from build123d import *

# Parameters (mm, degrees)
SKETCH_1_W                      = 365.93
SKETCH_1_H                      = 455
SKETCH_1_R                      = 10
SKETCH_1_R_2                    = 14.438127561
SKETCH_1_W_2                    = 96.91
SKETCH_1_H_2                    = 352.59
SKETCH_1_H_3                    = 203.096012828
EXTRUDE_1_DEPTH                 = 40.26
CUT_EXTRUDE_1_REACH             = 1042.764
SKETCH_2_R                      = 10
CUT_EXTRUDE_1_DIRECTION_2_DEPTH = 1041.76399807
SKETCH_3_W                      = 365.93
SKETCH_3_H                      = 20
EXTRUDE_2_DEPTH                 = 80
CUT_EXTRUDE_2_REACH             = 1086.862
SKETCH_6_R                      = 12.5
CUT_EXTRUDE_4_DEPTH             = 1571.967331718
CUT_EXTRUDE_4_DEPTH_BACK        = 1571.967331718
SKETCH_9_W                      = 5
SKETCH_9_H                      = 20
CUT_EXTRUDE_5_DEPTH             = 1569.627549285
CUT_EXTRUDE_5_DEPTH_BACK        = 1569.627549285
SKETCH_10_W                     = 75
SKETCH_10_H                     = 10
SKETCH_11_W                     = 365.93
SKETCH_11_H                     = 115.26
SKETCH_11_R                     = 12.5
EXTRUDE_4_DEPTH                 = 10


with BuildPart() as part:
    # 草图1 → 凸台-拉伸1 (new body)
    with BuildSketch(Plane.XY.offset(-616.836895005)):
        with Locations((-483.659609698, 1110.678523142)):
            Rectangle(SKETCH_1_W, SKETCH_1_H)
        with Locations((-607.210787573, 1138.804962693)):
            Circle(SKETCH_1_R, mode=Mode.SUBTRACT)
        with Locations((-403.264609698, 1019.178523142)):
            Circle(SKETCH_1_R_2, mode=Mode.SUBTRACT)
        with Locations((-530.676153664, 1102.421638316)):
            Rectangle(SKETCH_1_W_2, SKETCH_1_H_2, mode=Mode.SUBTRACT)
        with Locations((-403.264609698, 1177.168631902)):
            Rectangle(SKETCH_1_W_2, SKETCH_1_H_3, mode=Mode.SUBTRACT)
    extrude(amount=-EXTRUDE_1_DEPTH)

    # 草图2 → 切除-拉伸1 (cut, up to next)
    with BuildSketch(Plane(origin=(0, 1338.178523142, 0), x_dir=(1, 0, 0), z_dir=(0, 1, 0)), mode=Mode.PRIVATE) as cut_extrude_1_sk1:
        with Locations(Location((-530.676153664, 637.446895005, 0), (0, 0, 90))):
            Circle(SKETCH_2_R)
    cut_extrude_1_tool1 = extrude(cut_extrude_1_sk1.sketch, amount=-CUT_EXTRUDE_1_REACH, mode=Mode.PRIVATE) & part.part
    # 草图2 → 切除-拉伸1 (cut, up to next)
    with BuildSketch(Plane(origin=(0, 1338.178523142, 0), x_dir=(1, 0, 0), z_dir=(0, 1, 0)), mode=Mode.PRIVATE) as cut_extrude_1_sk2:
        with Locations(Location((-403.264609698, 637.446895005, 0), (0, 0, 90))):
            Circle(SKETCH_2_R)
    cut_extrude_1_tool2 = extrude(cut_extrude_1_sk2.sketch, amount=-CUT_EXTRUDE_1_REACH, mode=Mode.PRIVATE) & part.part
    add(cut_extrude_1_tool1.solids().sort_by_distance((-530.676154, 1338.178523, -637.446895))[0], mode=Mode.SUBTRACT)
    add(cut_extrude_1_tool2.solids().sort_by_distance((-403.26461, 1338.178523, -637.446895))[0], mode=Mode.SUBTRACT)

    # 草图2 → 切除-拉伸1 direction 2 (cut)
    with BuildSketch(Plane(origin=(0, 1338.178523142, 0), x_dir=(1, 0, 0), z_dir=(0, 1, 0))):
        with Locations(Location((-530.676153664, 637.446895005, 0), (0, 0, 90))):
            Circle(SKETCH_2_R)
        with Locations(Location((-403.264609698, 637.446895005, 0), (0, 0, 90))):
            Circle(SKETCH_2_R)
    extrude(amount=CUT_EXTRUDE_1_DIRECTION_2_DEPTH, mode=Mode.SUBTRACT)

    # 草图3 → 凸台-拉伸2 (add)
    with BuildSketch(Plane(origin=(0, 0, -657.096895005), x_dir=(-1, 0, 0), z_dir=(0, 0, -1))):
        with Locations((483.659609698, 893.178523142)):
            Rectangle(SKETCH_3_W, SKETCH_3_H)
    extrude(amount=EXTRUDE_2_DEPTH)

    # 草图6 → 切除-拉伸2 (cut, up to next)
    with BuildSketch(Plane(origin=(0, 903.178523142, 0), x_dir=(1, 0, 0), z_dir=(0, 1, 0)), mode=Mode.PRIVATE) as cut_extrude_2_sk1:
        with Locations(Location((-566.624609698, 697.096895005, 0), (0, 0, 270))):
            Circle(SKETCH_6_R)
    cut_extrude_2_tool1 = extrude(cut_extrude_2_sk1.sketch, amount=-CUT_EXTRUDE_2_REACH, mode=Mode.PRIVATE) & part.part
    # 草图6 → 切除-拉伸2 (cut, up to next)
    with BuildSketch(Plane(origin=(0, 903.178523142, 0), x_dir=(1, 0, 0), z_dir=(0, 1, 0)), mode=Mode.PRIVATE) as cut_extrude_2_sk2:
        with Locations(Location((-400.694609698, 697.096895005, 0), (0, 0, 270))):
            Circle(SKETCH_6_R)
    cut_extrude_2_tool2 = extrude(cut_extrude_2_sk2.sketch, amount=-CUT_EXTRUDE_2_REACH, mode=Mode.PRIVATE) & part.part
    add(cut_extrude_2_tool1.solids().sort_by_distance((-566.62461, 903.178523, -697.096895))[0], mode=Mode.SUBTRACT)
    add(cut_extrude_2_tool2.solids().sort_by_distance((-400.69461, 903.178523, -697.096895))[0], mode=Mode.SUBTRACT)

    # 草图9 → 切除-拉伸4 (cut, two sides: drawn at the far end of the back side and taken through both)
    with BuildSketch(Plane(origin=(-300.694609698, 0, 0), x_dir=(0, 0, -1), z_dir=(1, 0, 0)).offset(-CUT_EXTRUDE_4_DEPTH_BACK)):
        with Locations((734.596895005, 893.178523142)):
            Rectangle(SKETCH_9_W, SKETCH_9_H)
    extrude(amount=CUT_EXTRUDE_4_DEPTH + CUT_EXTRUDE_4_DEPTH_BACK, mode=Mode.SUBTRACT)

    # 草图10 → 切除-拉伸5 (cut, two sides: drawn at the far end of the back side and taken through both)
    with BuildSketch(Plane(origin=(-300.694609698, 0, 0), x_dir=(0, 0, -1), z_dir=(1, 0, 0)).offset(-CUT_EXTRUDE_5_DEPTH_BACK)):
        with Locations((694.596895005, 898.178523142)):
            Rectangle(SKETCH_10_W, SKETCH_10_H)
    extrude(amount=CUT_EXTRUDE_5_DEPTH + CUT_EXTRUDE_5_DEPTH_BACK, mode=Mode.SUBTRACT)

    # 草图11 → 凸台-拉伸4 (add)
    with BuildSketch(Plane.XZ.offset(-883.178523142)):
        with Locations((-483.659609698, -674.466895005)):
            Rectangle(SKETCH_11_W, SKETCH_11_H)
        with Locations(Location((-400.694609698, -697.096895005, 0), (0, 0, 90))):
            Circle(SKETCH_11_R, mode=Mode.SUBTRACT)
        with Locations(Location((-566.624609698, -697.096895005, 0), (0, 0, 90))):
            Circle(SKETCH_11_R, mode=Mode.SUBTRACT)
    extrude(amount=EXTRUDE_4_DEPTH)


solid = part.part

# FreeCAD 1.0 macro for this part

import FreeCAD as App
import Part
import Sketcher

V = App.Vector
Q = App.Units.Quantity

doc = App.newDocument("Part")
body = doc.addObject("PartDesign::Body", "Body")

# Sketch on XY plane
sketch1 = doc.addObject("Sketcher::SketchObject", "Sketch")
body.addObject(sketch1)
sketch1.AttachmentSupport = (doc.XY_Plane, [""])
sketch1.MapMode = "FlatFace"
sketch1.AttachmentOffset = App.Placement(V(0, 0, -616.836895), App.Rotation())
sketch1.addGeometry(Part.LineSegment(V(-666.62461, 1338.178523, 0), V(-666.62461, 883.178523, 0)), False)
sketch1.addGeometry(Part.LineSegment(V(-666.62461, 883.178523, 0), V(-300.69461, 883.178523, 0)), False)
sketch1.addGeometry(Part.LineSegment(V(-300.69461, 883.178523, 0), V(-300.69461, 1338.178523, 0)), False)
sketch1.addGeometry(Part.LineSegment(V(-300.69461, 1338.178523, 0), V(-666.62461, 1338.178523, 0)), False)
sketch1.addGeometry(Part.Circle(V(-403.26461, 1019.178523, 0), V(0, 0, 1), 14.438128), False)
sketch1.addGeometry(Part.Circle(V(-607.210788, 1138.804963, 0), V(0, 0, 1), 10), False)
sketch1.addGeometry(Part.LineSegment(V(-482.221154, 926.126638, 0), V(-579.131154, 926.126638, 0)), False)
sketch1.addGeometry(Part.LineSegment(V(-579.131154, 926.126638, 0), V(-579.131154, 1278.716638, 0)), False)
sketch1.addGeometry(Part.LineSegment(V(-579.131154, 1278.716638, 0), V(-482.221154, 1278.716638, 0)), False)
sketch1.addGeometry(Part.LineSegment(V(-482.221154, 1278.716638, 0), V(-482.221154, 926.126638, 0)), False)
sketch1.addGeometry(Part.LineSegment(V(-354.80961, 1075.620625, 0), V(-451.71961, 1075.620625, 0)), False)
sketch1.addGeometry(Part.LineSegment(V(-451.71961, 1075.620625, 0), V(-451.71961, 1278.716638, 0)), False)
sketch1.addGeometry(Part.LineSegment(V(-451.71961, 1278.716638, 0), V(-354.80961, 1278.716638, 0)), False)
sketch1.addGeometry(Part.LineSegment(V(-354.80961, 1278.716638, 0), V(-354.80961, 1075.620625, 0)), False)
sketch1.addConstraint(Sketcher.Constraint("Coincident", 0, 2, 1, 1))
sketch1.addConstraint(Sketcher.Constraint("Coincident", 1, 2, 2, 1))
sketch1.addConstraint(Sketcher.Constraint("Coincident", 2, 2, 3, 1))
sketch1.addConstraint(Sketcher.Constraint("Coincident", 3, 2, 0, 1))
sketch1.addConstraint(Sketcher.Constraint("Coincident", 6, 2, 7, 1))
sketch1.addConstraint(Sketcher.Constraint("Coincident", 7, 2, 8, 1))
sketch1.addConstraint(Sketcher.Constraint("Coincident", 8, 2, 9, 1))
sketch1.addConstraint(Sketcher.Constraint("Coincident", 9, 2, 6, 1))
sketch1.addConstraint(Sketcher.Constraint("Coincident", 10, 2, 11, 1))
sketch1.addConstraint(Sketcher.Constraint("Coincident", 11, 2, 12, 1))
sketch1.addConstraint(Sketcher.Constraint("Coincident", 12, 2, 13, 1))
sketch1.addConstraint(Sketcher.Constraint("Coincident", 13, 2, 10, 1))
sketch1.addConstraint(Sketcher.Constraint("Vertical", 0))
sketch1.addConstraint(Sketcher.Constraint("Horizontal", 1))
sketch1.addConstraint(Sketcher.Constraint("Vertical", 2))
sketch1.addConstraint(Sketcher.Constraint("Horizontal", 3))
sketch1.addConstraint(Sketcher.Constraint("Horizontal", 6))
sketch1.addConstraint(Sketcher.Constraint("Vertical", 7))
sketch1.addConstraint(Sketcher.Constraint("Horizontal", 8))
sketch1.addConstraint(Sketcher.Constraint("Vertical", 9))
sketch1.addConstraint(Sketcher.Constraint("Horizontal", 10))
sketch1.addConstraint(Sketcher.Constraint("Vertical", 11))
sketch1.addConstraint(Sketcher.Constraint("Horizontal", 12))
sketch1.addConstraint(Sketcher.Constraint("Vertical", 13))
sketch1.addConstraint(Sketcher.Constraint("Horizontal", 8, 2, 11, 2))
sketch1.addConstraint(Sketcher.Constraint("Equal", 8, 10))
sketch1.addConstraint(Sketcher.Constraint("Diameter", 5, Q("20 mm")))
sketch1.addConstraint(Sketcher.Constraint("DistanceY", 0, 2, 0, 1, Q("455 mm")))
sketch1.addConstraint(Sketcher.Constraint("DistanceY", 0, 2, 4, 3, Q("136 mm")))
sketch1.addConstraint(Sketcher.Constraint("DistanceX", 1, 1, 1, 2, Q("365.93 mm")))
sketch1.addConstraint(Sketcher.Constraint("DistanceX", 6, 2, 6, 1, Q("96.91 mm")))
sketch1.addConstraint(Sketcher.Constraint("DistanceY", 7, 1, 7, 2, Q("352.59 mm")))
sketch1.addConstraint(Sketcher.Constraint("DistanceX", 0, 2, 4, 3, Q("263.36 mm")))
sketch1.addConstraint(Sketcher.Constraint("Diameter", 4, Q("28.876255 mm")))
sketch1.addConstraint(Sketcher.Constraint("DistanceX", 10, 2, 4, 3, Q("48.455 mm")))
sketch1.addConstraint(Sketcher.Constraint("DistanceY", 11, 1, 11, 2, Q("203.096013 mm")))
sketch1.addConstraint(Sketcher.Constraint("DistanceX", 4, 3, -1, 1, Q("403.26461 mm")))
sketch1.addConstraint(Sketcher.Constraint("DistanceY", -1, 1, 6, 2, Q("926.126638 mm")))
sketch1.addConstraint(Sketcher.Constraint("DistanceY", 4, 3, 5, 3, Q("119.62644 mm")))
sketch1.addConstraint(Sketcher.Constraint("DistanceY", -1, 1, 4, 3, Q("1019.178523 mm")))
sketch1.addConstraint(Sketcher.Constraint("DistanceX", 5, 3, -1, 1, Q("607.210788 mm")))
sketch1.addConstraint(Sketcher.Constraint("DistanceX", 6, 2, -1, 1, Q("579.131154 mm")))
pad1 = doc.addObject("PartDesign::Pad", "Pad")
body.addObject(pad1)
pad1.Profile = sketch1
pad1.Length = 40.26
pad1.Reversed = True

# Sketch on XZ plane
sketch2 = doc.addObject("Sketcher::SketchObject", "Sketch001")
body.addObject(sketch2)
sketch2.AttachmentSupport = (doc.XZ_Plane, [""])
sketch2.MapMode = "FlatFace"
sketch2.AttachmentOffset = App.Placement(V(0, 0, -1338.178523), App.Rotation())
sketch2.addGeometry(Part.Circle(V(-530.676154, -637.446895, 0), V(0, 0, 1), 10), False)
sketch2.addConstraint(Sketcher.Constraint("Diameter", 0, Q("20 mm")))
sketch2.addConstraint(Sketcher.Constraint("DistanceX", 0, 3, -1, 1, Q("530.676154 mm")))
sketch2.addConstraint(Sketcher.Constraint("DistanceY", 0, 3, -1, 1, Q("637.446895 mm")))
pocket1 = doc.addObject("PartDesign::Pocket", "Pocket")
body.addObject(pocket1)
pocket1.Profile = sketch2
pocket1.Type = "UpToFirst"
pocket1.Reversed = True

# Sketch on XZ plane
sketch3 = doc.addObject("Sketcher::SketchObject", "Sketch002")
body.addObject(sketch3)
sketch3.AttachmentSupport = (doc.XZ_Plane, [""])
sketch3.MapMode = "FlatFace"
sketch3.AttachmentOffset = App.Placement(V(0, 0, -1338.178523), App.Rotation())
sketch3.addGeometry(Part.Circle(V(-403.26461, -637.446895, 0), V(0, 0, 1), 10), False)
sketch3.addConstraint(Sketcher.Constraint("Diameter", 0, Q("20 mm")))
sketch3.addConstraint(Sketcher.Constraint("DistanceX", 0, 3, -1, 1, Q("403.26461 mm")))
sketch3.addConstraint(Sketcher.Constraint("DistanceY", 0, 3, -1, 1, Q("637.446895 mm")))
pocket2 = doc.addObject("PartDesign::Pocket", "Pocket001")
body.addObject(pocket2)
pocket2.Profile = sketch3
pocket2.Type = "UpToFirst"
pocket2.Reversed = True

# Sketch on XZ plane
sketch4 = doc.addObject("Sketcher::SketchObject", "Sketch003")
body.addObject(sketch4)
sketch4.AttachmentSupport = (doc.XZ_Plane, [""])
sketch4.MapMode = "FlatFace"
sketch4.AttachmentOffset = App.Placement(V(0, 0, -1338.178523), App.Rotation())
sketch4.addGeometry(Part.Circle(V(-530.676154, -637.446895, 0), V(0, 0, 1), 10), False)
sketch4.addGeometry(Part.Circle(V(-403.26461, -637.446895, 0), V(0, 0, 1), 10), False)
sketch4.addConstraint(Sketcher.Constraint("Equal", 0, 1))
sketch4.addConstraint(Sketcher.Constraint("Horizontal", 0, 3, 1, 3))
sketch4.addConstraint(Sketcher.Constraint("Diameter", 0, Q("20 mm")))
sketch4.addConstraint(Sketcher.Constraint("DistanceX", 1, 3, -1, 1, Q("403.26461 mm")))
sketch4.addConstraint(Sketcher.Constraint("DistanceX", 0, 3, -1, 1, Q("530.676154 mm")))
sketch4.addConstraint(Sketcher.Constraint("DistanceY", 0, 3, -1, 1, Q("637.446895 mm")))
pocket3 = doc.addObject("PartDesign::Pocket", "Pocket002")
body.addObject(pocket3)
pocket3.Profile = sketch4
pocket3.Length = 1041.763998

# Sketch on XY plane
sketch5 = doc.addObject("Sketcher::SketchObject", "Sketch004")
body.addObject(sketch5)
sketch5.AttachmentSupport = (doc.XY_Plane, [""])
sketch5.MapMode = "FlatFace"
sketch5.AttachmentOffset = App.Placement(V(0, 0, -657.096895), App.Rotation())
sketch5.addGeometry(Part.LineSegment(V(-300.69461, 903.178523, 0), V(-300.69461, 883.178523, 0)), False)
sketch5.addGeometry(Part.LineSegment(V(-300.69461, 883.178523, 0), V(-666.62461, 883.178523, 0)), False)
sketch5.addGeometry(Part.LineSegment(V(-666.62461, 883.178523, 0), V(-666.62461, 903.178523, 0)), False)
sketch5.addGeometry(Part.LineSegment(V(-666.62461, 903.178523, 0), V(-300.69461, 903.178523, 0)), False)
sketch5.addConstraint(Sketcher.Constraint("Coincident", 0, 2, 1, 1))
sketch5.addConstraint(Sketcher.Constraint("Coincident", 1, 2, 2, 1))
sketch5.addConstraint(Sketcher.Constraint("Coincident", 2, 2, 3, 1))
sketch5.addConstraint(Sketcher.Constraint("Coincident", 3, 2, 0, 1))
sketch5.addConstraint(Sketcher.Constraint("Vertical", 0))
sketch5.addConstraint(Sketcher.Constraint("Horizontal", 1))
sketch5.addConstraint(Sketcher.Constraint("Vertical", 2))
sketch5.addConstraint(Sketcher.Constraint("Horizontal", 3))
sketch5.addConstraint(Sketcher.Constraint("DistanceY", 0, 2, 0, 1, Q("20 mm")))
sketch5.addConstraint(Sketcher.Constraint("DistanceX", 1, 2, 1, 1, Q("365.93 mm")))
sketch5.addConstraint(Sketcher.Constraint("DistanceX", 0, 2, -1, 1, Q("300.69461 mm")))
sketch5.addConstraint(Sketcher.Constraint("DistanceY", -1, 1, 0, 2, Q("883.178523 mm")))
pad2 = doc.addObject("PartDesign::Pad", "Pad001")
body.addObject(pad2)
pad2.Profile = sketch5
pad2.Length = 80
pad2.Reversed = True

# Sketch on XZ plane
sketch6 = doc.addObject("Sketcher::SketchObject", "Sketch005")
body.addObject(sketch6)
sketch6.AttachmentSupport = (doc.XZ_Plane, [""])
sketch6.MapMode = "FlatFace"
sketch6.AttachmentOffset = App.Placement(V(0, 0, -903.178523), App.Rotation())
sketch6.addGeometry(Part.Circle(V(-566.62461, -697.096895, 0), V(0, 0, 1), 12.5), False)
sketch6.addConstraint(Sketcher.Constraint("Diameter", 0, Q("25 mm")))
sketch6.addConstraint(Sketcher.Constraint("DistanceX", 0, 3, -1, 1, Q("566.62461 mm")))
sketch6.addConstraint(Sketcher.Constraint("DistanceY", 0, 3, -1, 1, Q("697.096895 mm")))
pocket4 = doc.addObject("PartDesign::Pocket", "Pocket003")
body.addObject(pocket4)
pocket4.Profile = sketch6
pocket4.Type = "UpToFirst"
pocket4.Reversed = True

# Sketch on XZ plane
sketch7 = doc.addObject("Sketcher::SketchObject", "Sketch006")
body.addObject(sketch7)
sketch7.AttachmentSupport = (doc.XZ_Plane, [""])
sketch7.MapMode = "FlatFace"
sketch7.AttachmentOffset = App.Placement(V(0, 0, -903.178523), App.Rotation())
sketch7.addGeometry(Part.Circle(V(-400.69461, -697.096895, 0), V(0, 0, 1), 12.5), False)
sketch7.addConstraint(Sketcher.Constraint("Diameter", 0, Q("25 mm")))
sketch7.addConstraint(Sketcher.Constraint("DistanceX", 0, 3, -1, 1, Q("400.69461 mm")))
sketch7.addConstraint(Sketcher.Constraint("DistanceY", 0, 3, -1, 1, Q("697.096895 mm")))
pocket5 = doc.addObject("PartDesign::Pocket", "Pocket004")
body.addObject(pocket5)
pocket5.Profile = sketch7
pocket5.Type = "UpToFirst"
pocket5.Reversed = True

# Sketch on YZ plane
sketch8 = doc.addObject("Sketcher::SketchObject", "Sketch007")
body.addObject(sketch8)
sketch8.AttachmentSupport = (doc.YZ_Plane, [""])
sketch8.MapMode = "FlatFace"
sketch8.AttachmentOffset = App.Placement(V(0, 0, -300.69461), App.Rotation())
sketch8.addGeometry(Part.LineSegment(V(903.178523, -732.096895, 0), V(883.178523, -732.096895, 0)), False)
sketch8.addGeometry(Part.LineSegment(V(883.178523, -732.096895, 0), V(883.178523, -737.096895, 0)), False)
sketch8.addGeometry(Part.LineSegment(V(883.178523, -737.096895, 0), V(903.178523, -737.096895, 0)), False)
sketch8.addGeometry(Part.LineSegment(V(903.178523, -737.096895, 0), V(903.178523, -732.096895, 0)), False)
sketch8.addConstraint(Sketcher.Constraint("Coincident", 0, 2, 1, 1))
sketch8.addConstraint(Sketcher.Constraint("Coincident", 1, 2, 2, 1))
sketch8.addConstraint(Sketcher.Constraint("Coincident", 2, 2, 3, 1))
sketch8.addConstraint(Sketcher.Constraint("Coincident", 3, 2, 0, 1))
sketch8.addConstraint(Sketcher.Constraint("Horizontal", 0))
sketch8.addConstraint(Sketcher.Constraint("Vertical", 1))
sketch8.addConstraint(Sketcher.Constraint("Horizontal", 2))
sketch8.addConstraint(Sketcher.Constraint("Vertical", 3))
sketch8.addConstraint(Sketcher.Constraint("DistanceX", 0, 2, 0, 1, Q("20 mm")))
sketch8.addConstraint(Sketcher.Constraint("DistanceY", 1, 2, 1, 1, Q("5 mm")))
sketch8.addConstraint(Sketcher.Constraint("DistanceX", -1, 1, 0, 2, Q("883.178523 mm")))
sketch8.addConstraint(Sketcher.Constraint("DistanceY", 0, 2, -1, 1, Q("732.096895 mm")))
pocket6 = doc.addObject("PartDesign::Pocket", "Pocket005")
body.addObject(pocket6)
pocket6.Profile = sketch8
pocket6.Type = "ThroughAll"
pocket6.Midplane = True

# Sketch on YZ plane
sketch9 = doc.addObject("Sketcher::SketchObject", "Sketch008")
body.addObject(sketch9)
sketch9.AttachmentSupport = (doc.YZ_Plane, [""])
sketch9.MapMode = "FlatFace"
sketch9.AttachmentOffset = App.Placement(V(0, 0, -300.69461), App.Rotation())
sketch9.addGeometry(Part.LineSegment(V(903.178523, -657.096895, 0), V(893.178523, -657.096895, 0)), False)
sketch9.addGeometry(Part.LineSegment(V(893.178523, -657.096895, 0), V(893.178523, -732.096895, 0)), False)
sketch9.addGeometry(Part.LineSegment(V(893.178523, -732.096895, 0), V(903.178523, -732.096895, 0)), False)
sketch9.addGeometry(Part.LineSegment(V(903.178523, -732.096895, 0), V(903.178523, -657.096895, 0)), False)
sketch9.addConstraint(Sketcher.Constraint("Coincident", 0, 2, 1, 1))
sketch9.addConstraint(Sketcher.Constraint("Coincident", 1, 2, 2, 1))
sketch9.addConstraint(Sketcher.Constraint("Coincident", 2, 2, 3, 1))
sketch9.addConstraint(Sketcher.Constraint("Coincident", 3, 2, 0, 1))
sketch9.addConstraint(Sketcher.Constraint("Horizontal", 0))
sketch9.addConstraint(Sketcher.Constraint("Vertical", 1))
sketch9.addConstraint(Sketcher.Constraint("Horizontal", 2))
sketch9.addConstraint(Sketcher.Constraint("Vertical", 3))
sketch9.addConstraint(Sketcher.Constraint("DistanceX", 0, 2, 0, 1, Q("10 mm")))
sketch9.addConstraint(Sketcher.Constraint("DistanceY", 1, 2, 1, 1, Q("75 mm")))
sketch9.addConstraint(Sketcher.Constraint("DistanceX", -1, 1, 0, 2, Q("893.178523 mm")))
sketch9.addConstraint(Sketcher.Constraint("DistanceY", 0, 2, -1, 1, Q("657.096895 mm")))
pocket7 = doc.addObject("PartDesign::Pocket", "Pocket006")
body.addObject(pocket7)
pocket7.Profile = sketch9
pocket7.Type = "ThroughAll"
pocket7.Midplane = True

# Sketch on XZ plane
sketch10 = doc.addObject("Sketcher::SketchObject", "Sketch009")
body.addObject(sketch10)
sketch10.AttachmentSupport = (doc.XZ_Plane, [""])
sketch10.MapMode = "FlatFace"
sketch10.AttachmentOffset = App.Placement(V(0, 0, -883.178523), App.Rotation())
sketch10.addGeometry(Part.LineSegment(V(-666.62461, -616.836895, 0), V(-666.62461, -732.096895, 0)), False)
sketch10.addGeometry(Part.LineSegment(V(-666.62461, -732.096895, 0), V(-300.69461, -732.096895, 0)), False)
sketch10.addGeometry(Part.LineSegment(V(-300.69461, -732.096895, 0), V(-300.69461, -616.836895, 0)), False)
sketch10.addGeometry(Part.LineSegment(V(-300.69461, -616.836895, 0), V(-666.62461, -616.836895, 0)), False)
sketch10.addGeometry(Part.Circle(V(-566.62461, -697.096895, 0), V(0, 0, 1), 12.5), False)
sketch10.addGeometry(Part.Circle(V(-400.69461, -697.096895, 0), V(0, 0, 1), 12.5), False)
sketch10.addConstraint(Sketcher.Constraint("Coincident", 0, 2, 1, 1))
sketch10.addConstraint(Sketcher.Constraint("Coincident", 1, 2, 2, 1))
sketch10.addConstraint(Sketcher.Constraint("Coincident", 2, 2, 3, 1))
sketch10.addConstraint(Sketcher.Constraint("Coincident", 3, 2, 0, 1))
sketch10.addConstraint(Sketcher.Constraint("Vertical", 0))
sketch10.addConstraint(Sketcher.Constraint("Horizontal", 1))
sketch10.addConstraint(Sketcher.Constraint("Vertical", 2))
sketch10.addConstraint(Sketcher.Constraint("Horizontal", 3))
sketch10.addConstraint(Sketcher.Constraint("Equal", 4, 5))
sketch10.addConstraint(Sketcher.Constraint("Horizontal", 4, 3, 5, 3))
sketch10.addConstraint(Sketcher.Constraint("Diameter", 4, Q("25 mm")))
sketch10.addConstraint(Sketcher.Constraint("DistanceX", 0, 2, 4, 3, Q("100 mm")))
sketch10.addConstraint(Sketcher.Constraint("DistanceY", 0, 2, 4, 3, Q("35 mm")))
sketch10.addConstraint(Sketcher.Constraint("DistanceX", 5, 3, 1, 2, Q("100 mm")))
sketch10.addConstraint(Sketcher.Constraint("DistanceX", 1, 1, 1, 2, Q("365.93 mm")))
sketch10.addConstraint(Sketcher.Constraint("DistanceY", 0, 2, 0, 1, Q("115.26 mm")))
sketch10.addConstraint(Sketcher.Constraint("DistanceX", 4, 3, -1, 1, Q("566.62461 mm")))
sketch10.addConstraint(Sketcher.Constraint("DistanceY", 4, 3, -1, 1, Q("697.096895 mm")))
pad3 = doc.addObject("PartDesign::Pad", "Pad002")
body.addObject(pad3)
pad3.Profile = sketch10
pad3.Length = 10

doc.recompute()
